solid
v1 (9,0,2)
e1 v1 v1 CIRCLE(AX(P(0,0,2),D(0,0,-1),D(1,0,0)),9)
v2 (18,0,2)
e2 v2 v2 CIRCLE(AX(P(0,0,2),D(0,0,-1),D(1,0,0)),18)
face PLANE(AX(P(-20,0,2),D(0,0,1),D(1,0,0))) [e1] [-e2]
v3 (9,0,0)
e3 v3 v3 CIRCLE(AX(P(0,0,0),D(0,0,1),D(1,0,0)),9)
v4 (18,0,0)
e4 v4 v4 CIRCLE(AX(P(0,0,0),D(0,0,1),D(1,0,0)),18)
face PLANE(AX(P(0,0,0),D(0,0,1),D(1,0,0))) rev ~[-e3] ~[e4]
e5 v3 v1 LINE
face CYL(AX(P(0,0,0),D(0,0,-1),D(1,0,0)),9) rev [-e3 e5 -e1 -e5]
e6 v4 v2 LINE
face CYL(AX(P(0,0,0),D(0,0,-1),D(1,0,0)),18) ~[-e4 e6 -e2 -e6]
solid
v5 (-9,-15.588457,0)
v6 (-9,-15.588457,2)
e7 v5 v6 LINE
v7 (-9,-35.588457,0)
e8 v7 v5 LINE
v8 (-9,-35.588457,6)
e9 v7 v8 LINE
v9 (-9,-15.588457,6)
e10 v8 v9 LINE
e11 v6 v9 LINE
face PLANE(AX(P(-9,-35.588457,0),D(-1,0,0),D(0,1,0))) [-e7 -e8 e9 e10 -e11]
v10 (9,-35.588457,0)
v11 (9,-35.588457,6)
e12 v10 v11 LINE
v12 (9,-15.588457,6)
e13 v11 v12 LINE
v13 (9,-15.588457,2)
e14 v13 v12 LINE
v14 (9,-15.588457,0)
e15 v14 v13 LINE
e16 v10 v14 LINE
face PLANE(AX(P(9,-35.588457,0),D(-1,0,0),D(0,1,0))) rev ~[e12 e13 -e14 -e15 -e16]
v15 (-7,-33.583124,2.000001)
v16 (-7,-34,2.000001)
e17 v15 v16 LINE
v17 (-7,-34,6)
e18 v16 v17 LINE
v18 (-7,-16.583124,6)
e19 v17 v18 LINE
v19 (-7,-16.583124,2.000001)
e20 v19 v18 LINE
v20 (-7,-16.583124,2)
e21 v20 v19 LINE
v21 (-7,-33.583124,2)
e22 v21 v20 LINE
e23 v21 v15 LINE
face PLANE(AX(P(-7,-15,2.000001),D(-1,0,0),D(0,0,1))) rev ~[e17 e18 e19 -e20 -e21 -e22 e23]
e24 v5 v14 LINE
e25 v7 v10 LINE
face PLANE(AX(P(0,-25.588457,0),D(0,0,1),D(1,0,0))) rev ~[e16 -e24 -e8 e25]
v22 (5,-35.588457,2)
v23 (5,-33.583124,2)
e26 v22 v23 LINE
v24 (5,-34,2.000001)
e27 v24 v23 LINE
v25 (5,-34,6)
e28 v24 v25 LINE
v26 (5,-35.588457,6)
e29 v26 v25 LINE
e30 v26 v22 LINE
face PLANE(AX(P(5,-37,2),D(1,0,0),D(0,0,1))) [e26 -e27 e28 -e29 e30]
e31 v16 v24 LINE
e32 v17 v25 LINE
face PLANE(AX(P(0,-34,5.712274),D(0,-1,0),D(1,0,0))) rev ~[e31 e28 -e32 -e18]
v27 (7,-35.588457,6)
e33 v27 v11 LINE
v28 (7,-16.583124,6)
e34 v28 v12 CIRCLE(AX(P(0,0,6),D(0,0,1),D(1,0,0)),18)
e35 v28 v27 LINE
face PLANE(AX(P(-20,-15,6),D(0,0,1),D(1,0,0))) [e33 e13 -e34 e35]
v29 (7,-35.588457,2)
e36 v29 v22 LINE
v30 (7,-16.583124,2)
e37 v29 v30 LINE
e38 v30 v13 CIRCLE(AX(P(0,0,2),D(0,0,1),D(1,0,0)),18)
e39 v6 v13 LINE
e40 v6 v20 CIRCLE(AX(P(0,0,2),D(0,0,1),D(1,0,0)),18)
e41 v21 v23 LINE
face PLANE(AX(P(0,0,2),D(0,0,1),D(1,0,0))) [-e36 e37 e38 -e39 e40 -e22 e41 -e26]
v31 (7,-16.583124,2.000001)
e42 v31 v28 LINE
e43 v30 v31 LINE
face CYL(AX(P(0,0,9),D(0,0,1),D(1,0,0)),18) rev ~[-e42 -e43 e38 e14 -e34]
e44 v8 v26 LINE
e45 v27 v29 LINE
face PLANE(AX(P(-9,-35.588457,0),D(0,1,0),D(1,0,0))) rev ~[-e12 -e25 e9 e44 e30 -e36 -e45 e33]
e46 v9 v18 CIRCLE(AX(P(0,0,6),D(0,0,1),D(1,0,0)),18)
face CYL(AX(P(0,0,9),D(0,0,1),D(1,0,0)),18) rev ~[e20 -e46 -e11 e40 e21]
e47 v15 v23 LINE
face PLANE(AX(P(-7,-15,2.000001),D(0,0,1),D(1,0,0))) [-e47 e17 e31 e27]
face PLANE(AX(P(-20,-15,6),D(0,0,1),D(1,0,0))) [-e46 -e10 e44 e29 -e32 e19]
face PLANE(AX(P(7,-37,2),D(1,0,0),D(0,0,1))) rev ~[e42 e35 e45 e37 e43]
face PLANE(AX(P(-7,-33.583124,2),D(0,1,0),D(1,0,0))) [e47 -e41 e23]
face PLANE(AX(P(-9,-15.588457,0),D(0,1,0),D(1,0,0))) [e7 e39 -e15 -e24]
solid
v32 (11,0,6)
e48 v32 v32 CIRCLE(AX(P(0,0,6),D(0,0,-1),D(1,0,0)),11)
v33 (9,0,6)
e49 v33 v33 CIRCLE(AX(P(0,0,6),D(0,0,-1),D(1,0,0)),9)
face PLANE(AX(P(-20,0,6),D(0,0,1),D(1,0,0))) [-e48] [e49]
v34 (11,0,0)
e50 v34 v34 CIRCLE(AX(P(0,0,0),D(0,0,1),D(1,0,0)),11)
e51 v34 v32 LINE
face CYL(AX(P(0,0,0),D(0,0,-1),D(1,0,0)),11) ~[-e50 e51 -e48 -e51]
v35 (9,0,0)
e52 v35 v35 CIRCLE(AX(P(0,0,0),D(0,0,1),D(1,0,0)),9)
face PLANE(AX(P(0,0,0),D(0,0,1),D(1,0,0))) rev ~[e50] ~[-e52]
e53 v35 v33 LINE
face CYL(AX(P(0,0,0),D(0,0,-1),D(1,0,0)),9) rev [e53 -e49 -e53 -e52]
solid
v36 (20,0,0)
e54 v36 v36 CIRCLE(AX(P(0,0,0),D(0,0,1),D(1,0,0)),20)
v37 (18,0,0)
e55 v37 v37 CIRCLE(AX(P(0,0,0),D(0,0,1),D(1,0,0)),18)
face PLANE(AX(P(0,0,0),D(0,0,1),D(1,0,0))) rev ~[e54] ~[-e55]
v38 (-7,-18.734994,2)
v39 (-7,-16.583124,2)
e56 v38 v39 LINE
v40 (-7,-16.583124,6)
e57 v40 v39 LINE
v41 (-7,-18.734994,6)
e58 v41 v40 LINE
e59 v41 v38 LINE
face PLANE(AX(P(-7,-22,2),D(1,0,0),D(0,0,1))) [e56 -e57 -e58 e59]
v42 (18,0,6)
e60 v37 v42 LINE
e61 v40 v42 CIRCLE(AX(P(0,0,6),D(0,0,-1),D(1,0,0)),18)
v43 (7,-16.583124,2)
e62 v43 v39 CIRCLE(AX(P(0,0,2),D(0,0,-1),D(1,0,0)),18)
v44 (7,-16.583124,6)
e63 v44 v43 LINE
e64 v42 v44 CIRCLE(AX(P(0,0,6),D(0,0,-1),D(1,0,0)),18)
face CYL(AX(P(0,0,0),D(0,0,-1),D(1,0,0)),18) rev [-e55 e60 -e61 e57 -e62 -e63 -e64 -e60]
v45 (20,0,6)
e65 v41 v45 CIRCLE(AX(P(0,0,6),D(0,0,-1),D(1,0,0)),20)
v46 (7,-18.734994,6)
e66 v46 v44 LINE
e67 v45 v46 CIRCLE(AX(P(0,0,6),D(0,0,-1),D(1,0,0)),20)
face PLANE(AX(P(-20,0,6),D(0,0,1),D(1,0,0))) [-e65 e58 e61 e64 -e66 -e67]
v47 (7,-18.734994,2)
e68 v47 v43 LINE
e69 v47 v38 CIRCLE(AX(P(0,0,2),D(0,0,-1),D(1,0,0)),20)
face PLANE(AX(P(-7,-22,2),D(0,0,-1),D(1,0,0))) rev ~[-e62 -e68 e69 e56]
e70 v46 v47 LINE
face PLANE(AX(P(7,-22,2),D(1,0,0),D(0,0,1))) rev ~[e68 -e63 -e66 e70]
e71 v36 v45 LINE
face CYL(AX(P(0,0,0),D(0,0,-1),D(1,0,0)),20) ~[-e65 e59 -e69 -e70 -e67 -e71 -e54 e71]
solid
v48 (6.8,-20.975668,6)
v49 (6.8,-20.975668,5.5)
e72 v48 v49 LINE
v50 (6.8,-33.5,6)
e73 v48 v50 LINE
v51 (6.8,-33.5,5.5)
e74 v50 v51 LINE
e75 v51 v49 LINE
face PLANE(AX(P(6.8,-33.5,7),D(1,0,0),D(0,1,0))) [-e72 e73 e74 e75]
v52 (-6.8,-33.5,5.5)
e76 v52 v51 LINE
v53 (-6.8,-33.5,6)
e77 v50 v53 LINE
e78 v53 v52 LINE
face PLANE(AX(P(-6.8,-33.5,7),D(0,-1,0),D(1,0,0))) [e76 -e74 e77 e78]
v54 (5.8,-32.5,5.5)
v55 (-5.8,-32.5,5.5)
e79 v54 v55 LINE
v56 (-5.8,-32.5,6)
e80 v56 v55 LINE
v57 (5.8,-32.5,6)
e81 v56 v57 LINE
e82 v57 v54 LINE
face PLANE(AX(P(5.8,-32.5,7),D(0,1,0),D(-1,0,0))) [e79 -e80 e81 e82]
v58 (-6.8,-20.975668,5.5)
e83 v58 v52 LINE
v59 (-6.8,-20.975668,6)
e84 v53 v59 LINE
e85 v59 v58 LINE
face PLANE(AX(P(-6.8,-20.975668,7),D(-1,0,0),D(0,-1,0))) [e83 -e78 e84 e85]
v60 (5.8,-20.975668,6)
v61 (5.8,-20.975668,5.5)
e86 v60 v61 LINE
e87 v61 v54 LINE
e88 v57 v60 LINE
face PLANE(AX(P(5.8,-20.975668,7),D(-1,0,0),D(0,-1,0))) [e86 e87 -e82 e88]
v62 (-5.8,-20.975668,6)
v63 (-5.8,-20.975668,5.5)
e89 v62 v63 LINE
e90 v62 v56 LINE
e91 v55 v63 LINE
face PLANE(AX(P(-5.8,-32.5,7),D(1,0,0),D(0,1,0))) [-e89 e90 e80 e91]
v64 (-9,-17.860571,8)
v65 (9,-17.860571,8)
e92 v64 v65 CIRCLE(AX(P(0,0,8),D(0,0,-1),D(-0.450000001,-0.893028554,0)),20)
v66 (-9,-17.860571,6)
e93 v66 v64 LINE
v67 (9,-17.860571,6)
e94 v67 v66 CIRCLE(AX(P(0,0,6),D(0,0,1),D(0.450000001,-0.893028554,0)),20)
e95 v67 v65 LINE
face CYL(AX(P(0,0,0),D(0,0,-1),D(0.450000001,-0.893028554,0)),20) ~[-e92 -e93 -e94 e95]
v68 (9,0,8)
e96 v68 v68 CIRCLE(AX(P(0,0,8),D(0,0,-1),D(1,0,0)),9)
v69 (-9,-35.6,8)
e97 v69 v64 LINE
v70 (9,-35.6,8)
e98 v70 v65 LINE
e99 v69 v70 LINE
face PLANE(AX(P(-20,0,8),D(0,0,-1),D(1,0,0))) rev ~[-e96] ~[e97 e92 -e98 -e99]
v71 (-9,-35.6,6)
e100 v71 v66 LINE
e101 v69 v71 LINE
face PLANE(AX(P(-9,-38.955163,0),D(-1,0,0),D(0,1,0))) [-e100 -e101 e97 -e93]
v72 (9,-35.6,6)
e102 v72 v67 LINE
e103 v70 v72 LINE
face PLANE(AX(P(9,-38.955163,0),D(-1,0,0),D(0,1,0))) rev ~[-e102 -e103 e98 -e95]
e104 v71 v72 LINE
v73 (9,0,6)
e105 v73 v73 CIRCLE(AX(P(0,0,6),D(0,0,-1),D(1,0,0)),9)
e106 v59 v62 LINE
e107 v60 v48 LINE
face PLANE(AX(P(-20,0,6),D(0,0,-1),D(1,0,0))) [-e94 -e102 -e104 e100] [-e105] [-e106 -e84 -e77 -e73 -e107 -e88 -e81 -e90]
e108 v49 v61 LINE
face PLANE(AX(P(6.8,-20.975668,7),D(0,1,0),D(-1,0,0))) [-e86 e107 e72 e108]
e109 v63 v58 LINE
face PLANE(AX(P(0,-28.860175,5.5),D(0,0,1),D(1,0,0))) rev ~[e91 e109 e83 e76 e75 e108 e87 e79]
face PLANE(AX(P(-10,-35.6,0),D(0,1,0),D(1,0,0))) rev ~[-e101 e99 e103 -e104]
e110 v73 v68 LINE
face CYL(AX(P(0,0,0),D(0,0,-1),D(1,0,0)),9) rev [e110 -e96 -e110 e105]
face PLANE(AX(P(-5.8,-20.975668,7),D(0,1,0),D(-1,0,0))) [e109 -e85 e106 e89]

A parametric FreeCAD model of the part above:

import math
import FreeCAD as App
import Part
import Sketcher

V = App.Vector
Q = App.Units.Quantity

doc = App.newDocument("Part")
params = doc.addObject("Spreadsheet::Sheet", "Params")
for row, (alias, value) in enumerate([
    ("sketch1_diameter", "40 mm"),
    ("pad1_length", "30 mm"),
    ("sketch2_diameter", "36 mm"),
    ("pocket1_length", "40 mm"),
    ("sketch3_width", "40 mm"),
    ("sketch3_height", "26 mm"),
    ("sketch4_width", "14 mm"),
    ("pocket3_length", "6 mm"),
    ("sketch5_diameter", "22 mm"),
    ("pad2_length", "30 mm"),
    ("sketch6_width", "40 mm"),
    ("sketch6_height", "26 mm"),
    ("sketch7_diameter", "18 mm"),
    ("sketch8_diameter", "36 mm"),
    ("pad3_length", "30 mm"),
    ("sketch9_width", "40 mm"),
    ("sketch9_height", "30 mm"),
    ("sketch10_diameter", "18 mm"),
    ("sketch11_width", "18 mm"),
    ("sketch11_height", "20 mm"),
    ("pad4_length", "9 mm"),
    ("sketch12_width", "14 mm"),
    ("sketch12_height", "17 mm"),
    ("pocket8_length", "7 mm"),
    ("sketch13_width", "40 mm"),
    ("sketch13_height", "26 mm"),
    ("pocket9_length", "21 mm"),
    ("sketch14_width", "14 mm"),
    ("pocket10_length", "19 mm"),
    ("sketch15_diameter", "36 mm"),
    ("pocket11_length", "7 mm"),
    ("sketch16_width", "2 mm"),
    ("sketch16_height", "8 mm"),
    ("pocket12_length", "5 mm"),
    ("sketch17_width", "40 mm"),
    ("sketch17_height", "26 mm"),
    ("pad5_length", "72 mm"),
    ("sketch18_width", "40 mm"),
    ("sketch18_height", "26 mm"),
    ("pocket13_length", "72 mm"),
    ("sketch19_diameter", "18 mm"),
    ("sketch20_radius", "20 mm"),
    ("sketch20_width", "18 mm"),
    ("sketch20_width2", "54 mm"),
    ("sketch20_height", "80 mm"),
    ("pocket15_length", "25 mm"),
    ("sketch21_width", "20 mm"),
    ("sketch21_height", "5 mm"),
    ("pocket16_length", "15 mm"),
    ("sketch22_width", "1 mm"),
    ("sketch22_width2", "13.6 mm"),
    ("pad6_length", "1.5 mm"),
], start=1):
    params.set(f"A{row}", alias)
    params.set(f"B{row}", "=" + value)
    params.setAlias(f"B{row}", alias)

body = doc.addObject("PartDesign::Body", "Body")

sketch1 = body.newObject("Sketcher::SketchObject", "Sketch")
sketch1.AttachmentSupport = (doc.getObject("XY_Plane"), [""])
sketch1.MapMode = "FlatFace"
sketch1.addGeometry(Part.Circle(V(0, 0, 0), V(0, 0, 1), 20), False)
sketch1.addConstraint([
    Sketcher.Constraint("Coincident", 0, 3, -1, 1),
    Sketcher.Constraint("Diameter", 0, Q("40 mm")),
])
sketch1.setExpression("Constraints[1]", "Params.sketch1_diameter")
pad1 = body.newObject("PartDesign::Pad", "Pad")
pad1.Profile = sketch1
pad1.setExpression("Length", "Params.pad1_length")

sketch2 = body.newObject("Sketcher::SketchObject", "Sketch001")
sketch2.AttachmentSupport = (doc.getObject("XY_Plane"), [""])
sketch2.MapMode = "FlatFace"
sketch2.addGeometry(Part.Circle(V(0, 0, 0), V(0, 0, 1), 18), False)
sketch2.addConstraint([
    Sketcher.Constraint("Coincident", 0, 3, -1, 1),
    Sketcher.Constraint("Diameter", 0, Q("36 mm")),
])
sketch2.setExpression("Constraints[1]", "Params.sketch2_diameter")
pocket1 = body.newObject("PartDesign::Pocket", "Pocket")
pocket1.Profile = sketch2
pocket1.setExpression("Length", "Params.pocket1_length")
pocket1.Reversed = True

sketch3 = body.newObject("Sketcher::SketchObject", "Sketch002")
sketch3.AttachmentSupport = (doc.getObject("XZ_Plane"), [""])
sketch3.MapMode = "FlatFace"
sketch3.addGeometry([
    Part.LineSegment(V(-20, 32, 0), V(-20, 6, 0)),
    Part.LineSegment(V(-20, 6, 0), V(20, 6, 0)),
    Part.LineSegment(V(20, 6, 0), V(20, 32, 0)),
    Part.LineSegment(V(20, 32, 0), V(-20, 32, 0)),
], False)
sketch3.addConstraint([
    Sketcher.Constraint("Coincident", 0, 2, 1, 1),
    Sketcher.Constraint("Coincident", 1, 2, 2, 1),
    Sketcher.Constraint("Coincident", 2, 2, 3, 1),
    Sketcher.Constraint("Coincident", 3, 2, 0, 1),
    Sketcher.Constraint("Vertical", 0),
    Sketcher.Constraint("Horizontal", 1),
    Sketcher.Constraint("Vertical", 2),
    Sketcher.Constraint("Horizontal", 3),
    Sketcher.Constraint("DistanceX", 1, 1, 1, 2, Q("40 mm")),
    Sketcher.Constraint("DistanceY", 0, 2, 0, 1, Q("26 mm")),
    Sketcher.Constraint("DistanceX", 0, 2, -1, 1, Q("20 mm")),
    Sketcher.Constraint("DistanceY", -1, 1, 0, 2, Q("6 mm")),
])
sketch3.setExpression("Constraints[8]", "Params.sketch3_width")
sketch3.setExpression("Constraints[9]", "Params.sketch3_height")
pocket2 = body.newObject("PartDesign::Pocket", "Pocket001")
pocket2.Profile = sketch3
pocket2.Type = "ThroughAll"
pocket2.Midplane = True

sketch4 = body.newObject("Sketcher::SketchObject", "Sketch003")
sketch4.AttachmentSupport = (doc.getObject("XZ_Plane"), [""])
sketch4.MapMode = "FlatFace"
sketch4.AttachmentOffset = App.Placement(V(0, 0, 22), App.Rotation())
sketch4.addGeometry([
    Part.LineSegment(V(-7, 10, 0), V(-7, 2, 0)),
    Part.LineSegment(V(-7, 2, 0), V(7, 2, 0)),
    Part.LineSegment(V(7, 2, 0), V(7, 10, 0)),
    Part.LineSegment(V(7, 10, 0), V(-7, 10, 0)),
], False)
sketch4.addConstraint([
    Sketcher.Constraint("Coincident", 0, 2, 1, 1),
    Sketcher.Constraint("Coincident", 1, 2, 2, 1),
    Sketcher.Constraint("Coincident", 2, 2, 3, 1),
    Sketcher.Constraint("Coincident", 3, 2, 0, 1),
    Sketcher.Constraint("Vertical", 0),
    Sketcher.Constraint("Horizontal", 1),
    Sketcher.Constraint("Vertical", 2),
    Sketcher.Constraint("Horizontal", 3),
    Sketcher.Constraint("DistanceX", 1, 1, 1, 2, Q("14 mm")),
    Sketcher.Constraint("DistanceX", 0, 2, -1, 1, Q("7 mm")),
    Sketcher.Constraint("DistanceY", -1, 1, 0, 2, Q("2 mm")),
    Sketcher.Constraint("DistanceY", 0, 2, 0, 1, Q("7.569522 mm")),
])
sketch4.setExpression("Constraints[8]", "Params.sketch4_width")
pocket3 = body.newObject("PartDesign::Pocket", "Pocket002")
pocket3.Profile = sketch4
pocket3.setExpression("Length", "Params.pocket3_length")
body2 = doc.addObject("PartDesign::Body", "Body001")

sketch5 = body2.newObject("Sketcher::SketchObject", "Sketch004")
sketch5.AttachmentSupport = (doc.getObject("XY_Plane001"), [""])
sketch5.MapMode = "FlatFace"
sketch5.addGeometry(Part.Circle(V(0, 0, 0), V(0, 0, 1), 11), False)
sketch5.addConstraint([
    Sketcher.Constraint("Coincident", 0, 3, -1, 1),
    Sketcher.Constraint("Diameter", 0, Q("22 mm")),
])
sketch5.setExpression("Constraints[1]", "Params.sketch5_diameter")
pad2 = body2.newObject("PartDesign::Pad", "Pad001")
pad2.Profile = sketch5
pad2.setExpression("Length", "Params.pad2_length")

sketch6 = body2.newObject("Sketcher::SketchObject", "Sketch005")
sketch6.AttachmentSupport = (doc.getObject("XZ_Plane001"), [""])
sketch6.MapMode = "FlatFace"
sketch6.addGeometry([
    Part.LineSegment(V(-20, 32, 0), V(-20, 6, 0)),
    Part.LineSegment(V(-20, 6, 0), V(20, 6, 0)),
    Part.LineSegment(V(20, 6, 0), V(20, 32, 0)),
    Part.LineSegment(V(20, 32, 0), V(-20, 32, 0)),
], False)
sketch6.addConstraint([
    Sketcher.Constraint("Coincident", 0, 2, 1, 1),
    Sketcher.Constraint("Coincident", 1, 2, 2, 1),
    Sketcher.Constraint("Coincident", 2, 2, 3, 1),
    Sketcher.Constraint("Coincident", 3, 2, 0, 1),
    Sketcher.Constraint("Vertical", 0),
    Sketcher.Constraint("Horizontal", 1),
    Sketcher.Constraint("Vertical", 2),
    Sketcher.Constraint("Horizontal", 3),
    Sketcher.Constraint("DistanceX", 1, 1, 1, 2, Q("40 mm")),
    Sketcher.Constraint("DistanceY", 0, 2, 0, 1, Q("26 mm")),
    Sketcher.Constraint("DistanceX", 0, 2, -1, 1, Q("20 mm")),
    Sketcher.Constraint("DistanceY", -1, 1, 0, 2, Q("6 mm")),
])
sketch6.setExpression("Constraints[8]", "Params.sketch6_width")
sketch6.setExpression("Constraints[9]", "Params.sketch6_height")
pocket4 = body2.newObject("PartDesign::Pocket", "Pocket003")
pocket4.Profile = sketch6
pocket4.Type = "ThroughAll"
pocket4.Midplane = True

sketch7 = body2.newObject("Sketcher::SketchObject", "Sketch006")
sketch7.AttachmentSupport = (doc.getObject("XY_Plane001"), [""])
sketch7.MapMode = "FlatFace"
sketch7.addGeometry(Part.Circle(V(0, 0, 0), V(0, 0, 1), 9), False)
sketch7.addConstraint([
    Sketcher.Constraint("Coincident", 0, 3, -1, 1),
    Sketcher.Constraint("Diameter", 0, Q("18 mm")),
])
sketch7.setExpression("Constraints[1]", "Params.sketch7_diameter")
pocket5 = body2.newObject("PartDesign::Pocket", "Pocket004")
pocket5.Profile = sketch7
pocket5.Type = "ThroughAll"
pocket5.Reversed = True
body3 = doc.addObject("PartDesign::Body", "Body002")

sketch8 = body3.newObject("Sketcher::SketchObject", "Sketch007")
sketch8.AttachmentSupport = (doc.getObject("XY_Plane002"), [""])
sketch8.MapMode = "FlatFace"
sketch8.addGeometry(Part.Circle(V(0, 0, 0), V(0, 0, 1), 18), False)
sketch8.addConstraint([
    Sketcher.Constraint("Coincident", 0, 3, -1, 1),
    Sketcher.Constraint("Diameter", 0, Q("36 mm")),
])
sketch8.setExpression("Constraints[1]", "Params.sketch8_diameter")
pad3 = body3.newObject("PartDesign::Pad", "Pad002")
pad3.Profile = sketch8
pad3.setExpression("Length", "Params.pad3_length")

sketch9 = body3.newObject("Sketcher::SketchObject", "Sketch008")
sketch9.AttachmentSupport = (doc.getObject("XZ_Plane002"), [""])
sketch9.MapMode = "FlatFace"
sketch9.addGeometry([
    Part.LineSegment(V(-20, 32, 0), V(-20, 2, 0)),
    Part.LineSegment(V(-20, 2, 0), V(20, 2, 0)),
    Part.LineSegment(V(20, 2, 0), V(20, 32, 0)),
    Part.LineSegment(V(20, 32, 0), V(-20, 32, 0)),
], False)
sketch9.addConstraint([
    Sketcher.Constraint("Coincident", 0, 2, 1, 1),
    Sketcher.Constraint("Coincident", 1, 2, 2, 1),
    Sketcher.Constraint("Coincident", 2, 2, 3, 1),
    Sketcher.Constraint("Coincident", 3, 2, 0, 1),
    Sketcher.Constraint("Vertical", 0),
    Sketcher.Constraint("Horizontal", 1),
    Sketcher.Constraint("Vertical", 2),
    Sketcher.Constraint("Horizontal", 3),
    Sketcher.Constraint("DistanceX", 1, 1, 1, 2, Q("40 mm")),
    Sketcher.Constraint("DistanceY", 0, 2, 0, 1, Q("30 mm")),
    Sketcher.Constraint("DistanceX", 0, 2, -1, 1, Q("20 mm")),
    Sketcher.Constraint("DistanceY", -1, 1, 0, 2, Q("2 mm")),
])
sketch9.setExpression("Constraints[8]", "Params.sketch9_width")
sketch9.setExpression("Constraints[9]", "Params.sketch9_height")
pocket6 = body3.newObject("PartDesign::Pocket", "Pocket005")
pocket6.Profile = sketch9
pocket6.Type = "ThroughAll"
pocket6.Midplane = True

sketch10 = body3.newObject("Sketcher::SketchObject", "Sketch009")
sketch10.AttachmentSupport = (doc.getObject("XY_Plane002"), [""])
sketch10.MapMode = "FlatFace"
sketch10.addGeometry(Part.Circle(V(0, 0, 0), V(0, 0, 1), 9), False)
sketch10.addConstraint([
    Sketcher.Constraint("Coincident", 0, 3, -1, 1),
    Sketcher.Constraint("Diameter", 0, Q("18 mm")),
])
sketch10.setExpression("Constraints[1]", "Params.sketch10_diameter")
pocket7 = body3.newObject("PartDesign::Pocket", "Pocket006")
pocket7.Profile = sketch10
pocket7.Type = "ThroughAll"
pocket7.Reversed = True
body4 = doc.addObject("PartDesign::Body", "Body003")

sketch11 = body4.newObject("Sketcher::SketchObject", "Sketch010")
sketch11.AttachmentSupport = (doc.getObject("XY_Plane003"), [""])
sketch11.MapMode = "FlatFace"
sketch11.addGeometry([
    Part.LineSegment(V(-9, -16, 0), V(-9, -36, 0)),
    Part.LineSegment(V(-9, -36, 0), V(9, -36, 0)),
    Part.LineSegment(V(9, -36, 0), V(9, -16, 0)),
    Part.LineSegment(V(9, -16, 0), V(-9, -16, 0)),
], False)
sketch11.addConstraint([
    Sketcher.Constraint("Coincident", 0, 2, 1, 1),
    Sketcher.Constraint("Coincident", 1, 2, 2, 1),
    Sketcher.Constraint("Coincident", 2, 2, 3, 1),
    Sketcher.Constraint("Coincident", 3, 2, 0, 1),
    Sketcher.Constraint("Vertical", 0),
    Sketcher.Constraint("Horizontal", 1),
    Sketcher.Constraint("Vertical", 2),
    Sketcher.Constraint("Horizontal", 3),
    Sketcher.Constraint("DistanceX", 1, 1, 1, 2, Q("18 mm")),
    Sketcher.Constraint("DistanceY", 0, 2, 0, 1, Q("20 mm")),
    Sketcher.Constraint("DistanceX", 0, 2, -1, 1, Q("9 mm")),
    Sketcher.Constraint("DistanceY", 0, 2, -1, 1, Q("35.588457 mm")),
])
sketch11.setExpression("Constraints[8]", "Params.sketch11_width")
sketch11.setExpression("Constraints[9]", "Params.sketch11_height")
pad4 = body4.newObject("PartDesign::Pad", "Pad003")
pad4.Profile = sketch11
pad4.setExpression("Length", "Params.pad4_length")

sketch12 = body4.newObject("Sketcher::SketchObject", "Sketch011")
sketch12.AttachmentSupport = (doc.getObject("XY_Plane003"), [""])
sketch12.MapMode = "FlatFace"
sketch12.AttachmentOffset = App.Placement(V(0, 0, 2), App.Rotation())
sketch12.addGeometry([
    Part.LineSegment(V(-7, -17, 0), V(-7, -34, 0)),
    Part.LineSegment(V(-7, -34, 0), V(7, -34, 0)),
    Part.LineSegment(V(7, -34, 0), V(7, -17, 0)),
    Part.LineSegment(V(7, -17, 0), V(-7, -17, 0)),
], False)
sketch12.addConstraint([
    Sketcher.Constraint("Coincident", 0, 2, 1, 1),
    Sketcher.Constraint("Coincident", 1, 2, 2, 1),
    Sketcher.Constraint("Coincident", 2, 2, 3, 1),
    Sketcher.Constraint("Coincident", 3, 2, 0, 1),
    Sketcher.Constraint("Vertical", 0),
    Sketcher.Constraint("Horizontal", 1),
    Sketcher.Constraint("Vertical", 2),
    Sketcher.Constraint("Horizontal", 3),
    Sketcher.Constraint("DistanceX", 1, 1, 1, 2, Q("14 mm")),
    Sketcher.Constraint("DistanceY", 0, 2, 0, 1, Q("17 mm")),
    Sketcher.Constraint("DistanceX", 0, 2, -1, 1, Q("7 mm")),
    Sketcher.Constraint("DistanceY", 0, 2, -1, 1, Q("33.583124 mm")),
])
sketch12.setExpression("Constraints[8]", "Params.sketch12_width")
sketch12.setExpression("Constraints[9]", "Params.sketch12_height")
pocket8 = body4.newObject("PartDesign::Pocket", "Pocket007")
pocket8.Profile = sketch12
pocket8.setExpression("Length", "Params.pocket8_length")
pocket8.Reversed = True

sketch13 = body4.newObject("Sketcher::SketchObject", "Sketch012")
sketch13.AttachmentSupport = (doc.getObject("XZ_Plane003"), [""])
sketch13.MapMode = "FlatFace"
sketch13.AttachmentOffset = App.Placement(V(0, 0, 15), App.Rotation())
sketch13.addGeometry([
    Part.LineSegment(V(-20, 32, 0), V(-20, 6, 0)),
    Part.LineSegment(V(-20, 6, 0), V(20, 6, 0)),
    Part.LineSegment(V(20, 6, 0), V(20, 32, 0)),
    Part.LineSegment(V(20, 32, 0), V(-20, 32, 0)),
], False)
sketch13.addConstraint([
    Sketcher.Constraint("Coincident", 0, 2, 1, 1),
    Sketcher.Constraint("Coincident", 1, 2, 2, 1),
    Sketcher.Constraint("Coincident", 2, 2, 3, 1),
    Sketcher.Constraint("Coincident", 3, 2, 0, 1),
    Sketcher.Constraint("Vertical", 0),
    Sketcher.Constraint("Horizontal", 1),
    Sketcher.Constraint("Vertical", 2),
    Sketcher.Constraint("Horizontal", 3),
    Sketcher.Constraint("DistanceX", 1, 1, 1, 2, Q("40 mm")),
    Sketcher.Constraint("DistanceY", 0, 2, 0, 1, Q("26 mm")),
    Sketcher.Constraint("DistanceX", 0, 2, -1, 1, Q("20 mm")),
    Sketcher.Constraint("DistanceY", -1, 1, 0, 2, Q("6 mm")),
])
sketch13.setExpression("Constraints[8]", "Params.sketch13_width")
sketch13.setExpression("Constraints[9]", "Params.sketch13_height")
pocket9 = body4.newObject("PartDesign::Pocket", "Pocket008")
pocket9.Profile = sketch13
pocket9.setExpression("Length", "Params.pocket9_length")
pocket9.Reversed = True

sketch14 = body4.newObject("Sketcher::SketchObject", "Sketch013")
sketch14.AttachmentSupport = (doc.getObject("XZ_Plane003"), [""])
sketch14.MapMode = "FlatFace"
sketch14.AttachmentOffset = App.Placement(V(0, 0, 15), App.Rotation())
sketch14.addGeometry([
    Part.LineSegment(V(-7, 9, 0), V(-7, 2, 0)),
    Part.LineSegment(V(-7, 2, 0), V(7, 2, 0)),
    Part.LineSegment(V(7, 2, 0), V(7, 9, 0)),
    Part.LineSegment(V(7, 9, 0), V(-7, 9, 0)),
], False)
sketch14.addConstraint([
    Sketcher.Constraint("Coincident", 0, 2, 1, 1),
    Sketcher.Constraint("Coincident", 1, 2, 2, 1),
    Sketcher.Constraint("Coincident", 2, 2, 3, 1),
    Sketcher.Constraint("Coincident", 3, 2, 0, 1),
    Sketcher.Constraint("Vertical", 0),
    Sketcher.Constraint("Horizontal", 1),
    Sketcher.Constraint("Vertical", 2),
    Sketcher.Constraint("Horizontal", 3),
    Sketcher.Constraint("DistanceX", 1, 1, 1, 2, Q("14 mm")),
    Sketcher.Constraint("DistanceX", 0, 2, -1, 1, Q("7 mm")),
    Sketcher.Constraint("DistanceY", -1, 1, 0, 2, Q("2.000001 mm")),
    Sketcher.Constraint("DistanceY", 0, 2, 0, 1, Q("7.424547 mm")),
])
sketch14.setExpression("Constraints[8]", "Params.sketch14_width")
pocket10 = body4.newObject("PartDesign::Pocket", "Pocket009")
pocket10.Profile = sketch14
pocket10.setExpression("Length", "Params.pocket10_length")
pocket10.Reversed = True

sketch15 = body4.newObject("Sketcher::SketchObject", "Sketch014")
sketch15.AttachmentSupport = (doc.getObject("XY_Plane003"), [""])
sketch15.MapMode = "FlatFace"
sketch15.AttachmentOffset = App.Placement(V(0, 0, 9), App.Rotation())
sketch15.addGeometry(Part.Circle(V(0, 0, 0), V(0, 0, 1), 18), False)
sketch15.addConstraint([
    Sketcher.Constraint("Coincident", 0, 3, -1, 1),
    Sketcher.Constraint("Diameter", 0, Q("36 mm")),
])
sketch15.setExpression("Constraints[1]", "Params.sketch15_diameter")
pocket11 = body4.newObject("PartDesign::Pocket", "Pocket010")
pocket11.Profile = sketch15
pocket11.setExpression("Length", "Params.pocket11_length")

sketch16 = body4.newObject("Sketcher::SketchObject", "Sketch015")
sketch16.AttachmentSupport = (doc.getObject("XZ_Plane003"), [""])
sketch16.MapMode = "FlatFace"
sketch16.AttachmentOffset = App.Placement(V(0, 0, 37), App.Rotation())
sketch16.addGeometry([
    Part.LineSegment(V(5, 10, 0), V(5, 2, 0)),
    Part.LineSegment(V(5, 2, 0), V(7, 2, 0)),
    Part.LineSegment(V(7, 2, 0), V(7, 10, 0)),
    Part.LineSegment(V(7, 10, 0), V(5, 10, 0)),
], False)
sketch16.addConstraint([
    Sketcher.Constraint("Coincident", 0, 2, 1, 1),
    Sketcher.Constraint("Coincident", 1, 2, 2, 1),
    Sketcher.Constraint("Coincident", 2, 2, 3, 1),
    Sketcher.Constraint("Coincident", 3, 2, 0, 1),
    Sketcher.Constraint("Vertical", 0),
    Sketcher.Constraint("Horizontal", 1),
    Sketcher.Constraint("Vertical", 2),
    Sketcher.Constraint("Horizontal", 3),
    Sketcher.Constraint("DistanceX", 1, 1, 1, 2, Q("2 mm")),
    Sketcher.Constraint("DistanceY", 0, 2, 0, 1, Q("8 mm")),
    Sketcher.Constraint("DistanceX", -1, 1, 0, 2, Q("5 mm")),
    Sketcher.Constraint("DistanceY", -1, 1, 0, 2, Q("2 mm")),
])
sketch16.setExpression("Constraints[8]", "Params.sketch16_width")
sketch16.setExpression("Constraints[9]", "Params.sketch16_height")
pocket12 = body4.newObject("PartDesign::Pocket", "Pocket011")
pocket12.Profile = sketch16
pocket12.setExpression("Length", "Params.pocket12_length")
body5 = doc.addObject("PartDesign::Body", "Body004")

sketch17 = body5.newObject("Sketcher::SketchObject", "Sketch016")
sketch17.AttachmentSupport = (doc.getObject("XZ_Plane004"), [""])
sketch17.MapMode = "FlatFace"
sketch17.addGeometry([
    Part.LineSegment(V(-20, 32, 0), V(-20, 6, 0)),
    Part.LineSegment(V(-20, 6, 0), V(20, 6, 0)),
    Part.LineSegment(V(20, 6, 0), V(20, 32, 0)),
    Part.LineSegment(V(20, 32, 0), V(-20, 32, 0)),
], False)
sketch17.addConstraint([
    Sketcher.Constraint("Coincident", 0, 2, 1, 1),
    Sketcher.Constraint("Coincident", 1, 2, 2, 1),
    Sketcher.Constraint("Coincident", 2, 2, 3, 1),
    Sketcher.Constraint("Coincident", 3, 2, 0, 1),
    Sketcher.Constraint("Vertical", 0),
    Sketcher.Constraint("Horizontal", 1),
    Sketcher.Constraint("Vertical", 2),
    Sketcher.Constraint("Horizontal", 3),
    Sketcher.Constraint("DistanceX", 1, 1, 1, 2, Q("40 mm")),
    Sketcher.Constraint("DistanceY", 0, 2, 0, 1, Q("26 mm")),
    Sketcher.Constraint("DistanceX", 0, 2, -1, 1, Q("20 mm")),
    Sketcher.Constraint("DistanceY", -1, 1, 0, 2, Q("6 mm")),
])
sketch17.setExpression("Constraints[8]", "Params.sketch17_width")
sketch17.setExpression("Constraints[9]", "Params.sketch17_height")
pad5 = body5.newObject("PartDesign::Pad", "Pad004")
pad5.Profile = sketch17
pad5.setExpression("Length", "Params.pad5_length")
pad5.Midplane = True

sketch18 = body5.newObject("Sketcher::SketchObject", "Sketch017")
sketch18.AttachmentSupport = (doc.getObject("XZ_Plane004"), [""])
sketch18.MapMode = "FlatFace"
sketch18.addGeometry([
    Part.LineSegment(V(-20, 34, 0), V(-20, 8, 0)),
    Part.LineSegment(V(-20, 8, 0), V(20, 8, 0)),
    Part.LineSegment(V(20, 8, 0), V(20, 34, 0)),
    Part.LineSegment(V(20, 34, 0), V(-20, 34, 0)),
], False)
sketch18.addConstraint([
    Sketcher.Constraint("Coincident", 0, 2, 1, 1),
    Sketcher.Constraint("Coincident", 1, 2, 2, 1),
    Sketcher.Constraint("Coincident", 2, 2, 3, 1),
    Sketcher.Constraint("Coincident", 3, 2, 0, 1),
    Sketcher.Constraint("Vertical", 0),
    Sketcher.Constraint("Horizontal", 1),
    Sketcher.Constraint("Vertical", 2),
    Sketcher.Constraint("Horizontal", 3),
    Sketcher.Constraint("DistanceX", 1, 1, 1, 2, Q("40 mm")),
    Sketcher.Constraint("DistanceY", 0, 2, 0, 1, Q("26 mm")),
    Sketcher.Constraint("DistanceX", 0, 2, -1, 1, Q("20 mm")),
    Sketcher.Constraint("DistanceY", -1, 1, 0, 2, Q("8 mm")),
])
sketch18.setExpression("Constraints[8]", "Params.sketch18_width")
sketch18.setExpression("Constraints[9]", "Params.sketch18_height")
pocket13 = body5.newObject("PartDesign::Pocket", "Pocket012")
pocket13.Profile = sketch18
pocket13.setExpression("Length", "Params.pocket13_length")
pocket13.Midplane = True

sketch19 = body5.newObject("Sketcher::SketchObject", "Sketch018")
sketch19.AttachmentSupport = (doc.getObject("XY_Plane004"), [""])
sketch19.MapMode = "FlatFace"
sketch19.addGeometry(Part.Circle(V(0, 0, 0), V(0, 0, 1), 9), False)
sketch19.addConstraint([
    Sketcher.Constraint("Coincident", 0, 3, -1, 1),
    Sketcher.Constraint("Diameter", 0, Q("18 mm")),
])
sketch19.setExpression("Constraints[1]", "Params.sketch19_diameter")
pocket14 = body5.newObject("PartDesign::Pocket", "Pocket013")
pocket14.Profile = sketch19
pocket14.Type = "ThroughAll"
pocket14.Reversed = True

sketch20 = body5.newObject("Sketcher::SketchObject", "Sketch019")
sketch20.AttachmentSupport = (doc.getObject("XY_Plane004"), [""])
sketch20.MapMode = "FlatFace"
sketch20.addGeometry([
    Part.LineSegment(V(9, -18, 0), V(9, -39, 0)),
    Part.LineSegment(V(9, -39, 0), V(27, -39, 0)),
    Part.LineSegment(V(27, -39, 0), V(27, 41, 0)),
    Part.LineSegment(V(27, 41, 0), V(-27, 41, 0)),
    Part.LineSegment(V(-27, 41, 0), V(-27, -39, 0)),
    Part.LineSegment(V(-27, -39, 0), V(-9, -39, 0)),
    Part.LineSegment(V(-9, -39, 0), V(-9, -18, 0)),
    Part.ArcOfCircle(Part.Circle(V(0, 0, 0), V(0, 0, 1), 20), math.radians(-63), math.radians(243)),
], False)
sketch20.addConstraint([
    Sketcher.Constraint("Coincident", 0, 2, 1, 1),
    Sketcher.Constraint("Coincident", 1, 2, 2, 1),
    Sketcher.Constraint("Coincident", 2, 2, 3, 1),
    Sketcher.Constraint("Coincident", 3, 2, 4, 1),
    Sketcher.Constraint("Coincident", 4, 2, 5, 1),
    Sketcher.Constraint("Coincident", 5, 2, 6, 1),
    Sketcher.Constraint("Coincident", 6, 2, 7, 2),
    Sketcher.Constraint("Coincident", 7, 1, 0, 1),
    Sketcher.Constraint("Vertical", 0),
    Sketcher.Constraint("Horizontal", 1),
    Sketcher.Constraint("Vertical", 2),
    Sketcher.Constraint("Horizontal", 3),
    Sketcher.Constraint("Vertical", 4),
    Sketcher.Constraint("Horizontal", 5),
    Sketcher.Constraint("Vertical", 6),
    Sketcher.Constraint("Coincident", 7, 3, -1, 1),
    Sketcher.Constraint("Symmetric", 1, 2, 4, 2, -2),
    Sketcher.Constraint("Horizontal", 6, 2, 7, 1),
    Sketcher.Constraint("Radius", 7, Q("20 mm")),
    Sketcher.Constraint("DistanceX", 1, 1, 1, 2, Q("18 mm")),
    Sketcher.Constraint("DistanceX", 3, 2, 3, 1, Q("54 mm")),
    Sketcher.Constraint("DistanceY", 2, 1, 2, 2, Q("80 mm")),
    Sketcher.Constraint("DistanceY", 0, 2, 0, 1, Q("21.094592 mm")),
])
sketch20.setExpression("Constraints[18]", "Params.sketch20_radius")
sketch20.setExpression("Constraints[19]", "Params.sketch20_width")
sketch20.setExpression("Constraints[20]", "Params.sketch20_width2")
sketch20.setExpression("Constraints[21]", "Params.sketch20_height")
pocket15 = body5.newObject("PartDesign::Pocket", "Pocket014")
pocket15.Profile = sketch20
pocket15.setExpression("Length", "Params.pocket15_length")
pocket15.Reversed = True

sketch21 = body5.newObject("Sketcher::SketchObject", "Sketch020")
sketch21.AttachmentSupport = (doc.getObject("XY_Plane004"), [""])
sketch21.MapMode = "FlatFace"
sketch21.addGeometry([
    Part.LineSegment(V(-10, -36, 0), V(-10, -41, 0)),
    Part.LineSegment(V(-10, -41, 0), V(10, -41, 0)),
    Part.LineSegment(V(10, -41, 0), V(10, -36, 0)),
    Part.LineSegment(V(10, -36, 0), V(-10, -36, 0)),
], False)
sketch21.addConstraint([
    Sketcher.Constraint("Coincident", 0, 2, 1, 1),
    Sketcher.Constraint("Coincident", 1, 2, 2, 1),
    Sketcher.Constraint("Coincident", 2, 2, 3, 1),
    Sketcher.Constraint("Coincident", 3, 2, 0, 1),
    Sketcher.Constraint("Vertical", 0),
    Sketcher.Constraint("Horizontal", 1),
    Sketcher.Constraint("Vertical", 2),
    Sketcher.Constraint("Horizontal", 3),
    Sketcher.Constraint("DistanceX", 1, 1, 1, 2, Q("20 mm")),
    Sketcher.Constraint("DistanceY", 0, 2, 0, 1, Q("5 mm")),
    Sketcher.Constraint("DistanceX", 0, 2, -1, 1, Q("10 mm")),
    Sketcher.Constraint("DistanceY", 0, 2, -1, 1, Q("40.6 mm")),
])
sketch21.setExpression("Constraints[8]", "Params.sketch21_width")
sketch21.setExpression("Constraints[9]", "Params.sketch21_height")
pocket16 = body5.newObject("PartDesign::Pocket", "Pocket015")
pocket16.Profile = sketch21
pocket16.setExpression("Length", "Params.pocket16_length")
pocket16.Reversed = True

sketch22 = body5.newObject("Sketcher::SketchObject", "Sketch021")
sketch22.AttachmentSupport = (doc.getObject("XY_Plane004"), [""])
sketch22.MapMode = "FlatFace"
sketch22.AttachmentOffset = App.Placement(V(0, 0, 7), App.Rotation())
sketch22.addGeometry([
    Part.LineSegment(V(-6.8, -21, 0), V(-6.8, -33.5, 0)),
    Part.LineSegment(V(-6.8, -33.5, 0), V(6.8, -33.5, 0)),
    Part.LineSegment(V(6.8, -33.5, 0), V(6.8, -21, 0)),
    Part.LineSegment(V(6.8, -21, 0), V(5.8, -21, 0)),
    Part.LineSegment(V(5.8, -21, 0), V(5.8, -32.5, 0)),
    Part.LineSegment(V(5.8, -32.5, 0), V(-5.8, -32.5, 0)),
    Part.LineSegment(V(-5.8, -32.5, 0), V(-5.8, -21, 0)),
    Part.LineSegment(V(-5.8, -21, 0), V(-6.8, -21, 0)),
], False)
sketch22.addConstraint([
    Sketcher.Constraint("Coincident", 0, 2, 1, 1),
    Sketcher.Constraint("Coincident", 1, 2, 2, 1),
    Sketcher.Constraint("Coincident", 2, 2, 3, 1),
    Sketcher.Constraint("Coincident", 3, 2, 4, 1),
    Sketcher.Constraint("Coincident", 4, 2, 5, 1),
    Sketcher.Constraint("Coincident", 5, 2, 6, 1),
    Sketcher.Constraint("Coincident", 6, 2, 7, 1),
    Sketcher.Constraint("Coincident", 7, 2, 0, 1),
    Sketcher.Constraint("Vertical", 0),
    Sketcher.Constraint("Horizontal", 1),
    Sketcher.Constraint("Vertical", 2),
    Sketcher.Constraint("Horizontal", 3),
    Sketcher.Constraint("Vertical", 4),
    Sketcher.Constraint("Horizontal", 5),
    Sketcher.Constraint("Vertical", 6),
    Sketcher.Constraint("Horizontal", 7),
    Sketcher.Constraint("Symmetric", 3, 2, 6, 2, -2),
    Sketcher.Constraint("Equal", 3, 7),
    Sketcher.Constraint("DistanceX", 3, 2, 3, 1, Q("1 mm")),
    Sketcher.Constraint("DistanceX", 1, 1, 1, 2, Q("13.6 mm")),
    Sketcher.Constraint("DistanceY", 1, 2, 4, 2, Q("1 mm")),
    Sketcher.Constraint("DistanceY", 0, 2, -1, 1, Q("33.5 mm")),
    Sketcher.Constraint("DistanceY", 0, 2, 0, 1, Q("12.524332 mm")),
])
sketch22.setExpression("Constraints[18]", "Params.sketch22_width")
sketch22.setExpression("Constraints[19]", "Params.sketch22_width2")
pad6 = body5.newObject("PartDesign::Pad", "Pad005")
pad6.Profile = sketch22
pad6.setExpression("Length", "Params.pad6_length")
pad6.Reversed = True

doc.recompute()
